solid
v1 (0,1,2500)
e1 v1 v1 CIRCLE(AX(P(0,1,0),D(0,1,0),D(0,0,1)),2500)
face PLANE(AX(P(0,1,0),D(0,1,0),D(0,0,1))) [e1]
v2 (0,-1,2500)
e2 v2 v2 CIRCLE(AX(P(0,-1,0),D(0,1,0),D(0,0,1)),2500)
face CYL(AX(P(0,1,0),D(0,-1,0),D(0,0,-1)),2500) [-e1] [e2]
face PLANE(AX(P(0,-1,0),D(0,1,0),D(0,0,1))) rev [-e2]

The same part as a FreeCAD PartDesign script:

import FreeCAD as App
import Part
import Sketcher
from FreeCAD import Vector

doc = App.newDocument("Part")
body = doc.addObject("PartDesign::Body", "Body")

# Sketch on XZ plane
sketch1 = body.newObject("Sketcher::SketchObject", "Sketch")
sketch1.AttachmentSupport = (doc.getObject("XZ_Plane"), [""])
sketch1.MapMode = "FlatFace"
sketch1.addGeometry(Part.Circle(Vector(0, 0, 0), Vector(0, 0, 1), 2500), False)
sketch1.addConstraint([
    Sketcher.Constraint("Coincident", 0, 3, -1, 1),
    Sketcher.Constraint("Diameter", 0, 5000.0),
])
pad1 = body.newObject("PartDesign::Pad", "Pad")
pad1.Profile = sketch1
pad1.Length = 2
pad1.Midplane = True

doc.recompute()
